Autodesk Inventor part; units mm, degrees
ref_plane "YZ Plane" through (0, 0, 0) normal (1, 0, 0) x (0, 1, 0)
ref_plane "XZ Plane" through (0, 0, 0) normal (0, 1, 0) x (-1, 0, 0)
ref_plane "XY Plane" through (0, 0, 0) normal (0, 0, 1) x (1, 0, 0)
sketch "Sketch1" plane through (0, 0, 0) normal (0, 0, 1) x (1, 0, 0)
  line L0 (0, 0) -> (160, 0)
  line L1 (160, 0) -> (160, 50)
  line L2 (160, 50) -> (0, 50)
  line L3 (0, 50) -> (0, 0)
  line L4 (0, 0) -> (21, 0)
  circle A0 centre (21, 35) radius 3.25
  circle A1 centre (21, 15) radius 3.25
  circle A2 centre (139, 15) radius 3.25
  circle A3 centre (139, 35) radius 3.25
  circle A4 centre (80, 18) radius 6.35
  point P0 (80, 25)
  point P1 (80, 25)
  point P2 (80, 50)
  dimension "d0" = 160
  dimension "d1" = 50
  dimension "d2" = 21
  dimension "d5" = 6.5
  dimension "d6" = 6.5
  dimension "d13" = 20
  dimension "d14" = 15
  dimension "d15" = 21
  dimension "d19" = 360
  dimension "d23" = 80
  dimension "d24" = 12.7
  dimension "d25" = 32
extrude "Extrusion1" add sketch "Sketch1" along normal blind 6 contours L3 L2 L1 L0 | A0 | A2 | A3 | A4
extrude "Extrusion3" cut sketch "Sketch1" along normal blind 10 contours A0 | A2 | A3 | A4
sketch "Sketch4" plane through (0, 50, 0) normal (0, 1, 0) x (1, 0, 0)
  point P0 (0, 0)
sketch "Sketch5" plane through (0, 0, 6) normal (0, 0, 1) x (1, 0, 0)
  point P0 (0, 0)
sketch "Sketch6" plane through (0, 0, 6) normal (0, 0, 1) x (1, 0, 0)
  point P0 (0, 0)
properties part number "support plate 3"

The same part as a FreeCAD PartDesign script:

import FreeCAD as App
import Part
import Sketcher
from FreeCAD import Vector
Q = App.Units.Quantity


def add_polygon(sketch, points):
    """Adds a closed chain of lines whose ends are joined by coincident constraints."""
    first, n = sketch.GeometryCount, len(points)
    for a, b in zip(points, points[1:] + points[:1]):
        sketch.addGeometry(Part.LineSegment(App.Vector(*a, 0), App.Vector(*b, 0)), False)
    for i in range(n):
        sketch.addConstraint(Sketcher.Constraint("Coincident", first + i, 2, first + (i + 1) % n, 1))

doc = App.newDocument("Part")
params = doc.addObject("Spreadsheet::Sheet", "Params")
for row, (alias, value) in enumerate([
    ("sketch1_diameter", "6.5 mm"),
    ("sketch1_width", "160 mm"),
    ("sketch1_height", "50 mm"),
    ("pad1_length", "6 mm"),
    ("sketch2_diameter", "6.5 mm"),
    ("sketch2_diameter2", "12.7 mm"),
    ("pocket1_length", "10 mm"),
], start=1):
    params.set(f"A{row}", alias)
    params.set(f"B{row}", "=" + value)
    params.setAlias(f"B{row}", alias)

body = doc.addObject("PartDesign::Body", "Body")

sketch1 = doc.addObject("Sketcher::SketchObject", "Sketch")
body.addObject(sketch1)
sketch1.AttachmentSupport = (doc.XY_Plane, [""])
sketch1.MapMode = "FlatFace"
add_polygon(sketch1, [(0, 50), (0, 0), (160, 0), (160, 50)])
sketch1.addGeometry(Part.Circle(Vector(21, 15, 0), Vector(0, 0, 1), 3.2), False)
sketch1.addConstraint([
    Sketcher.Constraint("Vertical", 0),
    Sketcher.Constraint("Horizontal", 1),
    Sketcher.Constraint("Vertical", 2),
    Sketcher.Constraint("Horizontal", 3),
    Sketcher.Constraint("Coincident", 0, 2, -1, 1),
    Sketcher.Constraint("Diameter", 4, Q("6.5 mm")),
    Sketcher.Constraint("DistanceX", 1, 1, 1, 2, Q("160 mm")),
    Sketcher.Constraint("DistanceY", 0, 2, 0, 1, Q("50 mm")),
    Sketcher.Constraint("DistanceX", -1, 1, 4, 3, Q("21 mm")),
    Sketcher.Constraint("DistanceY", -1, 1, 4, 3, Q("15 mm")),
])
sketch1.setExpression("Constraints[9]", "Params.sketch1_diameter")
sketch1.setExpression("Constraints[10]", "Params.sketch1_width")
sketch1.setExpression("Constraints[11]", "Params.sketch1_height")
pad1 = doc.addObject("PartDesign::Pad", "Pad")
body.addObject(pad1)
pad1.Profile = sketch1
pad1.setExpression("Length", "Params.pad1_length")

sketch2 = doc.addObject("Sketcher::SketchObject", "Sketch001")
body.addObject(sketch2)
sketch2.AttachmentSupport = (doc.XY_Plane, [""])
sketch2.MapMode = "FlatFace"
sketch2.addGeometry([
    Part.Circle(Vector(21, 35, 0), Vector(0, 0, 1), 3.2),
    Part.Circle(Vector(139, 15, 0), Vector(0, 0, 1), 3.2),
    Part.Circle(Vector(139, 35, 0), Vector(0, 0, 1), 3.2),
    Part.Circle(Vector(80, 18, 0), Vector(0, 0, 1), 6.3),
], False)
sketch2.addConstraint([
    Sketcher.Constraint("Equal", 0, 1),
    Sketcher.Constraint("Equal", 1, 2),
    Sketcher.Constraint("Horizontal", 0, 3, 2, 3),
    Sketcher.Constraint("Vertical", 1, 3, 2, 3),
    Sketcher.Constraint("Diameter", 0, Q("6.5 mm")),
    Sketcher.Constraint("Diameter", 3, Q("12.7 mm")),
    Sketcher.Constraint("DistanceX", -1, 1, 0, 3, Q("21 mm")),
    Sketcher.Constraint("DistanceY", -1, 1, 1, 3, Q("15 mm")),
    Sketcher.Constraint("DistanceX", -1, 1, 3, 3, Q("80 mm")),
    Sketcher.Constraint("DistanceY", 1, 3, 0, 3, Q("20 mm")),
    Sketcher.Constraint("DistanceX", -1, 1, 1, 3, Q("139 mm")),
    Sketcher.Constraint("DistanceY", -1, 1, 3, 3, Q("18 mm")),
])
sketch2.setExpression("Constraints[4]", "Params.sketch2_diameter")
sketch2.setExpression("Constraints[5]", "Params.sketch2_diameter2")
pocket1 = doc.addObject("PartDesign::Pocket", "Pocket")
body.addObject(pocket1)
pocket1.Profile = sketch2
pocket1.setExpression("Length", "Params.pocket1_length")
pocket1.Reversed = True

doc.recompute()
